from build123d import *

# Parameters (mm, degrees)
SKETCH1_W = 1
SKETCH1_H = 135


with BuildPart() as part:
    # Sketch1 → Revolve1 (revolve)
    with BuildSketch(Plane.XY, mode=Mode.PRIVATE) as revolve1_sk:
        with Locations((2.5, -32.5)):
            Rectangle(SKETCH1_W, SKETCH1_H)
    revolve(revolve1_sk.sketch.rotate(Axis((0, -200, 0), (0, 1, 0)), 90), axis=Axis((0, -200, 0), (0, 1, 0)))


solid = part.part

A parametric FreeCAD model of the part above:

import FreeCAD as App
import Part
import Sketcher

V = App.Vector


def add_polygon(sketch, points):
    """Adds a closed chain of lines whose ends are joined by coincident constraints."""
    first, n = sketch.GeometryCount, len(points)
    for a, b in zip(points, points[1:] + points[:1]):
        sketch.addGeometry(Part.LineSegment(App.Vector(*a, 0), App.Vector(*b, 0)), False)
    for i in range(n):
        sketch.addConstraint(Sketcher.Constraint("Coincident", first + i, 2, first + (i + 1) % n, 1))

doc = App.newDocument("Part")
body = doc.addObject("PartDesign::Body", "Body")

sketch1 = doc.addObject("Sketcher::SketchObject", "Sketch")
body.addObject(sketch1)
sketch1.AttachmentSupport = (doc.XY_Plane, [""])
sketch1.MapMode = "FlatFace"
add_polygon(sketch1, [(2, 35), (2, -100), (3, -100), (3, 35)])
sketch1.addConstraint([
    Sketcher.Constraint("Vertical", 0),
    Sketcher.Constraint("Horizontal", 1),
    Sketcher.Constraint("Vertical", 2),
    Sketcher.Constraint("Horizontal", 3),
    Sketcher.Constraint("DistanceX", 1, 1, 1, 2, 1.0),
    Sketcher.Constraint("DistanceY", 0, 2, 0, 1, 135.0),
    Sketcher.Constraint("DistanceX", -1, 1, 0, 2, 2.0),
    Sketcher.Constraint("DistanceY", 0, 2, -1, 1, 100.0),
])
revolution = doc.addObject("PartDesign::Revolution", "Revolution")
body.addObject(revolution)
revolution.Profile = sketch1
revolution.ReferenceAxis = (sketch1, ["V_Axis"])
revolution.Angle = 360

doc.recompute()
